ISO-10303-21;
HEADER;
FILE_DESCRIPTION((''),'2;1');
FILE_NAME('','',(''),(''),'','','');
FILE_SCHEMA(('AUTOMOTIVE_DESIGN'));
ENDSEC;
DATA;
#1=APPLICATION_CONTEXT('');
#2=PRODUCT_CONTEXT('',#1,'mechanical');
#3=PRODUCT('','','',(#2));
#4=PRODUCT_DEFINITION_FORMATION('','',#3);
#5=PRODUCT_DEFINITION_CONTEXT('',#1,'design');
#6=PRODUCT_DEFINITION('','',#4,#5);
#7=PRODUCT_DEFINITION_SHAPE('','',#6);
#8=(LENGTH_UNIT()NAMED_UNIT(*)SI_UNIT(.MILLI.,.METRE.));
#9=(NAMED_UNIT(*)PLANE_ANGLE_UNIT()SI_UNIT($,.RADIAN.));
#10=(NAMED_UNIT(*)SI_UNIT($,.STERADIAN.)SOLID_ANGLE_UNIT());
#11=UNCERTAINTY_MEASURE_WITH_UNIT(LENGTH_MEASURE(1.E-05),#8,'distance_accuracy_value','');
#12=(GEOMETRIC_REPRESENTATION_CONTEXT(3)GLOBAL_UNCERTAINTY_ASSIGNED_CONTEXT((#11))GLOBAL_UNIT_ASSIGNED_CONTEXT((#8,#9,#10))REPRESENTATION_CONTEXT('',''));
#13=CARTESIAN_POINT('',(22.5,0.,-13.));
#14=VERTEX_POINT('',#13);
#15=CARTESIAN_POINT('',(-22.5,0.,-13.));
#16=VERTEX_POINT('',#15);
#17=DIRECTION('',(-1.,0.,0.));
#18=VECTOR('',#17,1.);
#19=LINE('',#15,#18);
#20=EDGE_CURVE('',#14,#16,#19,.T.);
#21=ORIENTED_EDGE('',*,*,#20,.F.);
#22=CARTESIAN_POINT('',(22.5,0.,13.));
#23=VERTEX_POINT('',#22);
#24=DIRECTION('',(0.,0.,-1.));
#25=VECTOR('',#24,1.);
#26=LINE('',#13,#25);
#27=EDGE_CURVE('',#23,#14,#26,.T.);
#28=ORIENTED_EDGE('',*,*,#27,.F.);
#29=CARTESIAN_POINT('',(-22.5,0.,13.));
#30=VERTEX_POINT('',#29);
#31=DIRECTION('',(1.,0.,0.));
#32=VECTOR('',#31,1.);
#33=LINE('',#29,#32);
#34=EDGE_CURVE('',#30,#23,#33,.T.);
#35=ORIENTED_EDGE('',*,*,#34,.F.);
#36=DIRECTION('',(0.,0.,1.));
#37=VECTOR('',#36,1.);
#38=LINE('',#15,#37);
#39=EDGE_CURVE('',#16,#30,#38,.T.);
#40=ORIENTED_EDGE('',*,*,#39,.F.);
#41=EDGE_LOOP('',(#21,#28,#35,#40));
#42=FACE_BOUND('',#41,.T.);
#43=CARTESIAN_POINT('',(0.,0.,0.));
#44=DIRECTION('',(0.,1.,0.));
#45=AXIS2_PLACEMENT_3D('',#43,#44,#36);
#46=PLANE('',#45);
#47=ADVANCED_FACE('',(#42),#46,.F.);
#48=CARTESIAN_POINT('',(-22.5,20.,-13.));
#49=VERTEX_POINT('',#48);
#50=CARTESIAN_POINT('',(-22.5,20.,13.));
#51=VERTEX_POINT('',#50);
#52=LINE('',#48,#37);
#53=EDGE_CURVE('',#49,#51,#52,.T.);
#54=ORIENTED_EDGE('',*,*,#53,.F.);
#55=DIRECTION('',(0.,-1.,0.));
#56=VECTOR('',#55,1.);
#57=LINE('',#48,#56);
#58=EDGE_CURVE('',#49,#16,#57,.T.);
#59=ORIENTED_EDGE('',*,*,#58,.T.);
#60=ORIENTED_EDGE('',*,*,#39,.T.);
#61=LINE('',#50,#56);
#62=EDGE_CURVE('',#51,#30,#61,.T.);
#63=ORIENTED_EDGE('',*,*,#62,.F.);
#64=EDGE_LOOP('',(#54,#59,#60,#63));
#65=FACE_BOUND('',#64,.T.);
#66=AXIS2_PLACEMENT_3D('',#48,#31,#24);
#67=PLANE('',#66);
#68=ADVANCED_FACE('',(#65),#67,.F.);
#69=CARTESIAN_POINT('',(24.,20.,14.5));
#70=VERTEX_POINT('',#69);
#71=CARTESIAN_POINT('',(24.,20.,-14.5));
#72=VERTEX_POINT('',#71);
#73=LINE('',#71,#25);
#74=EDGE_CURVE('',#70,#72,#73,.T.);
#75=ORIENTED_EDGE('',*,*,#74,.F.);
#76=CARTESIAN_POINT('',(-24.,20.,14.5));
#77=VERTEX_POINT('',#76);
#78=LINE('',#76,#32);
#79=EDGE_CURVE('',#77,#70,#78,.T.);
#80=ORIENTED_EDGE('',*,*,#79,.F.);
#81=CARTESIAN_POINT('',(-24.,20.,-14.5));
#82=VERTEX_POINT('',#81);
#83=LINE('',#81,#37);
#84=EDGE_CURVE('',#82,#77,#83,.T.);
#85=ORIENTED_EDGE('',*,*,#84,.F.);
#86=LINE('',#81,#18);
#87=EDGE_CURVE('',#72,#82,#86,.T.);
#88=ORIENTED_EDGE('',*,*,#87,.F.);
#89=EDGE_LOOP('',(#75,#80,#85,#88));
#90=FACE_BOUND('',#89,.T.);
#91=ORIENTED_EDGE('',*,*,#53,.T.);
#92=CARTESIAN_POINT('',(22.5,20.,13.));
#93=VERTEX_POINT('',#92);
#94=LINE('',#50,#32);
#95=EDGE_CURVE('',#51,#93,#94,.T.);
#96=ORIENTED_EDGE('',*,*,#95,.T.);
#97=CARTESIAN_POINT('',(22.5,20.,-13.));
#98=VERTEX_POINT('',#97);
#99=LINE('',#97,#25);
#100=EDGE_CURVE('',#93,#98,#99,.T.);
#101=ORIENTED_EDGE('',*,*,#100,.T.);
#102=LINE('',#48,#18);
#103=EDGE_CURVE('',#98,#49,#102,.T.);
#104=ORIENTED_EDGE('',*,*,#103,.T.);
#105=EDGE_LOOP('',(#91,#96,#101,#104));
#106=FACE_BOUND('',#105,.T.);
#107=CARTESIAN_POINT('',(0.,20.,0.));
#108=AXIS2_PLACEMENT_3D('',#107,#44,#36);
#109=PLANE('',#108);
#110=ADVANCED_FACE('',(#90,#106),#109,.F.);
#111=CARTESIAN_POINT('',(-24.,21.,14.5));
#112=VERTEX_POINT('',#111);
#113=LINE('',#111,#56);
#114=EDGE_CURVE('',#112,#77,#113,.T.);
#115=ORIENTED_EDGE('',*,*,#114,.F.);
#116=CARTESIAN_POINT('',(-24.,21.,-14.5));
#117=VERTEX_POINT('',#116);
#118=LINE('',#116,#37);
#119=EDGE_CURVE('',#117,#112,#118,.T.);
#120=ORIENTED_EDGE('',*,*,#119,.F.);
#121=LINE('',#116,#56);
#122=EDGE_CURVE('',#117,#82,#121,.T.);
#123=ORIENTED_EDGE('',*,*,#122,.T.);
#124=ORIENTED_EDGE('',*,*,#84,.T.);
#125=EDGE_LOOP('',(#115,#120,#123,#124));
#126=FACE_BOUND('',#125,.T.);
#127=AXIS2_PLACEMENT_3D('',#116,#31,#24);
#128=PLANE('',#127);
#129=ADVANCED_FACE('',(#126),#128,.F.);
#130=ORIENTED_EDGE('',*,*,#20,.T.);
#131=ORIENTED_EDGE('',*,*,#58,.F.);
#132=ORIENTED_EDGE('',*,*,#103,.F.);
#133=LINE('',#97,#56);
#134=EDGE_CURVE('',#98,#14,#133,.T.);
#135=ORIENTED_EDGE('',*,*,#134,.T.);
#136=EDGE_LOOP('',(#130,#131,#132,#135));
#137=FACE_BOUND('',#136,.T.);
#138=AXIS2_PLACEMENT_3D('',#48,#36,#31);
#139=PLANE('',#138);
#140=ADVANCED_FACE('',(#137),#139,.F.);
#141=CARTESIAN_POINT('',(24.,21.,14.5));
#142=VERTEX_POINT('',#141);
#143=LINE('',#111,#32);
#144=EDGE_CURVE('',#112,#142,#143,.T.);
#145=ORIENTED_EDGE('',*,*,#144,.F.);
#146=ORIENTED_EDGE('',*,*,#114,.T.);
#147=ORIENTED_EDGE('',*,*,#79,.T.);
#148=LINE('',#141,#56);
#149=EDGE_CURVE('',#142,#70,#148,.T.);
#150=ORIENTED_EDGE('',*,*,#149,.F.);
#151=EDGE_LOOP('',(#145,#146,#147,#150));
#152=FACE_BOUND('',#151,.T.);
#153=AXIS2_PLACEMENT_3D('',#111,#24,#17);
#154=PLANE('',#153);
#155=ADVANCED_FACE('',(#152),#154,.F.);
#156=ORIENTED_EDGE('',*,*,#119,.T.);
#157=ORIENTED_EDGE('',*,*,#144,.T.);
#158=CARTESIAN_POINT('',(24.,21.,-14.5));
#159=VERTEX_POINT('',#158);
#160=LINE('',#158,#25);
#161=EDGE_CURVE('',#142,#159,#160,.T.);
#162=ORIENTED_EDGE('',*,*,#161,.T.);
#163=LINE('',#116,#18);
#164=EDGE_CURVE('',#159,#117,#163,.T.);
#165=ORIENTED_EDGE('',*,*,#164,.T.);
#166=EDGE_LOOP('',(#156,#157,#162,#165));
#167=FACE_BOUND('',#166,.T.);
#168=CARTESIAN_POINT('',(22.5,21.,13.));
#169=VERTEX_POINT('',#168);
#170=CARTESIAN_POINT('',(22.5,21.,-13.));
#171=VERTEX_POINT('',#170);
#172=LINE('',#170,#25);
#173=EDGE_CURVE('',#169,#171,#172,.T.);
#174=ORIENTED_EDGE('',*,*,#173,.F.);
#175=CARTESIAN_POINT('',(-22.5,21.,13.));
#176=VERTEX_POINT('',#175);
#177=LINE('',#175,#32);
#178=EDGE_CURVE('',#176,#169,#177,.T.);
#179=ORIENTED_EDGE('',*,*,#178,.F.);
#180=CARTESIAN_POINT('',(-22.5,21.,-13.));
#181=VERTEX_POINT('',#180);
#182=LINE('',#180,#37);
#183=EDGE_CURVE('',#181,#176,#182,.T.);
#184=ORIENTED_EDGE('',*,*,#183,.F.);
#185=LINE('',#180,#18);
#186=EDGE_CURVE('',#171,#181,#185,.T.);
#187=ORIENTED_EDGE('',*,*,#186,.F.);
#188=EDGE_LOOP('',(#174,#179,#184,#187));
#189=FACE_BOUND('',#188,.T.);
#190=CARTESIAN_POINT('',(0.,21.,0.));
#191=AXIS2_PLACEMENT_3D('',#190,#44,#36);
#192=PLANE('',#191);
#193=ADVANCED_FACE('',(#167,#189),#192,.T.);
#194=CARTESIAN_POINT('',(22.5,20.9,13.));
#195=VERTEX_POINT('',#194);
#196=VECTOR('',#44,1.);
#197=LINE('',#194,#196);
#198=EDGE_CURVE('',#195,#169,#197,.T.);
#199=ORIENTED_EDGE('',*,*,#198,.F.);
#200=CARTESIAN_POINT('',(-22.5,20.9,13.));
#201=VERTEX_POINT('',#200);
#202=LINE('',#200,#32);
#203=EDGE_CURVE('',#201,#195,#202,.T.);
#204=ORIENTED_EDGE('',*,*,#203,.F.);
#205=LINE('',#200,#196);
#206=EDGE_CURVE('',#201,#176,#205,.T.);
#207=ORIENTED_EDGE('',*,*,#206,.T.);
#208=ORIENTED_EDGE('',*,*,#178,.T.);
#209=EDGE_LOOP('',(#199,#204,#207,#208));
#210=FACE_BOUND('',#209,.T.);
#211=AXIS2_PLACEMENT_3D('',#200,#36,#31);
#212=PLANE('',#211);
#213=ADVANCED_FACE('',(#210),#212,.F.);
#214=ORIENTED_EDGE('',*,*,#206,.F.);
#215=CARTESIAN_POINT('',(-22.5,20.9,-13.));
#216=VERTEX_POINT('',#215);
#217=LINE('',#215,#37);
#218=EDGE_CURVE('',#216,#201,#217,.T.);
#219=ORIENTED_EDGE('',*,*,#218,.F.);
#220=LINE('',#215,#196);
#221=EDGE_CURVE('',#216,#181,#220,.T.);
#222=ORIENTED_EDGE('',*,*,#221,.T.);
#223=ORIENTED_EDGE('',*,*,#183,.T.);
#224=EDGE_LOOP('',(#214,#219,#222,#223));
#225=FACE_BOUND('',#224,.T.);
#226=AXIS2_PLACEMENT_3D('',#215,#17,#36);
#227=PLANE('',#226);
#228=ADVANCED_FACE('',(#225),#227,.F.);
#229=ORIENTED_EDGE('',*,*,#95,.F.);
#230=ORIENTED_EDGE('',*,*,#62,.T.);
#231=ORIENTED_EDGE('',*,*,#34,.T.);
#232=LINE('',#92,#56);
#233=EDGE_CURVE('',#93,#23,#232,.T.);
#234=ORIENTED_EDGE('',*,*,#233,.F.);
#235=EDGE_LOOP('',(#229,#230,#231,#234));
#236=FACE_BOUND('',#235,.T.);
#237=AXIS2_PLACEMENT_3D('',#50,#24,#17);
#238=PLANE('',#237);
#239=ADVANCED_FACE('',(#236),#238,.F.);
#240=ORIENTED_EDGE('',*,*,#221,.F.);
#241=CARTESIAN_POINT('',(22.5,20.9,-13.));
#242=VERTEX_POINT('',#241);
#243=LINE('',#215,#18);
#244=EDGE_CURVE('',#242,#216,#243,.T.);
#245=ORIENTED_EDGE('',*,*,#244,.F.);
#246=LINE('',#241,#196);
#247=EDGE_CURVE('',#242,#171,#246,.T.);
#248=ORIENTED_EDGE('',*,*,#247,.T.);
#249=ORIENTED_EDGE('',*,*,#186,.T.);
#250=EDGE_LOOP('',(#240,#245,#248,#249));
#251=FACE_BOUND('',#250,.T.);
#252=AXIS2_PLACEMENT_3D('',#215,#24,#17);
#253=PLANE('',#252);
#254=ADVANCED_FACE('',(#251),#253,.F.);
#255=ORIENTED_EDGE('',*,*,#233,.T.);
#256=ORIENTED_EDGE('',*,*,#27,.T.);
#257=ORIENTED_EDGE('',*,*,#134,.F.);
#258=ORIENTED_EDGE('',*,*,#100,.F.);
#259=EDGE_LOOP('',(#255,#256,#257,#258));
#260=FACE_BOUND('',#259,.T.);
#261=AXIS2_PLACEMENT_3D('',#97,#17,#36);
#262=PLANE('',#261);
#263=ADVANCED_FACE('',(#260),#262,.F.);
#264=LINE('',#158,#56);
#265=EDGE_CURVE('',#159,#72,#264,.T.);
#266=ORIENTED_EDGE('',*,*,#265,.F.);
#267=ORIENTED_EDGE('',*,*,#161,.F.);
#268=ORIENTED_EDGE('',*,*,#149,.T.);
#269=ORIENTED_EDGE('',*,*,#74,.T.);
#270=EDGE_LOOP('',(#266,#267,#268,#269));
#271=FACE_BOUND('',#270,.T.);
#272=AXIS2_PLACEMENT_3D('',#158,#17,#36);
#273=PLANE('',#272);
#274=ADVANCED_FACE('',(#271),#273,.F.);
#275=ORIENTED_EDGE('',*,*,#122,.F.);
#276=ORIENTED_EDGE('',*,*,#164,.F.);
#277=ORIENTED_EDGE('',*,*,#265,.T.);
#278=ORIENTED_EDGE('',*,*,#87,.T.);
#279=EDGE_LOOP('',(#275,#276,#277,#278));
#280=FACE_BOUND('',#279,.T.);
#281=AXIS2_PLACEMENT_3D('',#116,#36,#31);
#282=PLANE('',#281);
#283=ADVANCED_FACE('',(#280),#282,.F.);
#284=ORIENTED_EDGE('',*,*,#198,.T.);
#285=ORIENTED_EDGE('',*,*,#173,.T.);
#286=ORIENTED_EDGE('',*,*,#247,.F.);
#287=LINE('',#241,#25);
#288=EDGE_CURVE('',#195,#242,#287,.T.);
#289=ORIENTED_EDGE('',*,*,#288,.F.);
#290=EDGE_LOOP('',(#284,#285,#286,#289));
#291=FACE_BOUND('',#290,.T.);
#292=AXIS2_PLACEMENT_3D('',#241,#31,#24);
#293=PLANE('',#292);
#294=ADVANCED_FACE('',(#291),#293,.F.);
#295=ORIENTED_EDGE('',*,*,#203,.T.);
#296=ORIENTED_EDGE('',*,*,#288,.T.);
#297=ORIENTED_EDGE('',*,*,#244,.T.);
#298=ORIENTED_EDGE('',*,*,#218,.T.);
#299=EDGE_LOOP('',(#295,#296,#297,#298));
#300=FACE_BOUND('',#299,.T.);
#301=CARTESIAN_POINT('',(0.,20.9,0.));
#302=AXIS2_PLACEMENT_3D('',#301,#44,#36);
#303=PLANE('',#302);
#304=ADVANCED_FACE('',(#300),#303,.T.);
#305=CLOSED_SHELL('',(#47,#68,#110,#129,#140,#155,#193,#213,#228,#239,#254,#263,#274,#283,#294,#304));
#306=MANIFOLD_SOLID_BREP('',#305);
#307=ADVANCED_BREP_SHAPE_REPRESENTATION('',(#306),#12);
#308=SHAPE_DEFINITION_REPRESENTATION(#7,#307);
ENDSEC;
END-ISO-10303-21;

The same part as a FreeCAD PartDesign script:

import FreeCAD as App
import Part
import Sketcher
Q = App.Units.Quantity

doc = App.newDocument("Part")
body = doc.addObject("PartDesign::Body", "Body")

# Sketch on XZ plane
sketch1 = body.newObject("Sketcher::SketchObject", "Sketch")
sketch1.AttachmentSupport = (doc.getObject("XZ_Plane"), [""])
sketch1.MapMode = "FlatFace"
sketch1.addGeometry(Part.LineSegment(App.Vector(-22, -13, 0), App.Vector(-22, 13, 0)), False)
sketch1.addGeometry(Part.LineSegment(App.Vector(-22, 13, 0), App.Vector(22, 13, 0)), False)
sketch1.addGeometry(Part.LineSegment(App.Vector(22, 13, 0), App.Vector(22, -13, 0)), False)
sketch1.addGeometry(Part.LineSegment(App.Vector(22, -13, 0), App.Vector(-22, -13, 0)), False)
sketch1.addConstraint(Sketcher.Constraint("Coincident", 0, 2, 1, 1))
sketch1.addConstraint(Sketcher.Constraint("Coincident", 1, 2, 2, 1))
sketch1.addConstraint(Sketcher.Constraint("Coincident", 2, 2, 3, 1))
sketch1.addConstraint(Sketcher.Constraint("Coincident", 3, 2, 0, 1))
sketch1.addConstraint(Sketcher.Constraint("Vertical", 0))
sketch1.addConstraint(Sketcher.Constraint("Horizontal", 1))
sketch1.addConstraint(Sketcher.Constraint("Vertical", 2))
sketch1.addConstraint(Sketcher.Constraint("Horizontal", 3))
sketch1.addConstraint(Sketcher.Constraint("Symmetric", 0, 2, 2, 2, -1, 1))
sketch1.addConstraint(Sketcher.Constraint("DistanceX", 1, 1, 1, 2, Q("45 mm")))
sketch1.addConstraint(Sketcher.Constraint("DistanceY", 0, 1, 0, 2, Q("26 mm")))
pad1 = body.newObject("PartDesign::Pad", "Pad")
pad1.Profile = sketch1
pad1.Length = 20
pad1.Reversed = True

# Sketch on XZ plane
sketch2 = body.newObject("Sketcher::SketchObject", "Sketch001")
sketch2.AttachmentSupport = (doc.getObject("XZ_Plane"), [""])
sketch2.MapMode = "FlatFace"
sketch2.AttachmentOffset = App.Placement(App.Vector(0, 0, -20), App.Rotation())
sketch2.addGeometry(Part.LineSegment(App.Vector(-24, -14, 0), App.Vector(-24, 14, 0)), False)
sketch2.addGeometry(Part.LineSegment(App.Vector(-24, 14, 0), App.Vector(24, 14, 0)), False)
sketch2.addGeometry(Part.LineSegment(App.Vector(24, 14, 0), App.Vector(24, -14, 0)), False)
sketch2.addGeometry(Part.LineSegment(App.Vector(24, -14, 0), App.Vector(-24, -14, 0)), False)
sketch2.addConstraint(Sketcher.Constraint("Coincident", 0, 2, 1, 1))
sketch2.addConstraint(Sketcher.Constraint("Coincident", 1, 2, 2, 1))
sketch2.addConstraint(Sketcher.Constraint("Coincident", 2, 2, 3, 1))
sketch2.addConstraint(Sketcher.Constraint("Coincident", 3, 2, 0, 1))
sketch2.addConstraint(Sketcher.Constraint("Vertical", 0))
sketch2.addConstraint(Sketcher.Constraint("Horizontal", 1))
sketch2.addConstraint(Sketcher.Constraint("Vertical", 2))
sketch2.addConstraint(Sketcher.Constraint("Horizontal", 3))
sketch2.addConstraint(Sketcher.Constraint("Symmetric", 0, 2, 2, 2, -1, 1))
sketch2.addConstraint(Sketcher.Constraint("DistanceX", 1, 1, 1, 2, Q("48 mm")))
sketch2.addConstraint(Sketcher.Constraint("DistanceY", 0, 1, 0, 2, Q("29 mm")))
pad2 = body.newObject("PartDesign::Pad", "Pad001")
pad2.Profile = sketch2
pad2.Length = 1
pad2.Reversed = True

# Sketch on XZ plane
sketch3 = body.newObject("Sketcher::SketchObject", "Sketch002")
sketch3.AttachmentSupport = (doc.getObject("XZ_Plane"), [""])
sketch3.MapMode = "FlatFace"
sketch3.AttachmentOffset = App.Placement(App.Vector(0, 0, -21), App.Rotation())
sketch3.addGeometry(Part.LineSegment(App.Vector(-22, -13, 0), App.Vector(-22, 13, 0)), False)
sketch3.addGeometry(Part.LineSegment(App.Vector(-22, 13, 0), App.Vector(22, 13, 0)), False)
sketch3.addGeometry(Part.LineSegment(App.Vector(22, 13, 0), App.Vector(22, -13, 0)), False)
sketch3.addGeometry(Part.LineSegment(App.Vector(22, -13, 0), App.Vector(-22, -13, 0)), False)
sketch3.addConstraint(Sketcher.Constraint("Coincident", 0, 2, 1, 1))
sketch3.addConstraint(Sketcher.Constraint("Coincident", 1, 2, 2, 1))
sketch3.addConstraint(Sketcher.Constraint("Coincident", 2, 2, 3, 1))
sketch3.addConstraint(Sketcher.Constraint("Coincident", 3, 2, 0, 1))
sketch3.addConstraint(Sketcher.Constraint("Vertical", 0))
sketch3.addConstraint(Sketcher.Constraint("Horizontal", 1))
sketch3.addConstraint(Sketcher.Constraint("Vertical", 2))
sketch3.addConstraint(Sketcher.Constraint("Horizontal", 3))
sketch3.addConstraint(Sketcher.Constraint("Symmetric", 0, 2, 2, 2, -1, 1))
sketch3.addConstraint(Sketcher.Constraint("DistanceX", 1, 1, 1, 2, Q("45 mm")))
sketch3.addConstraint(Sketcher.Constraint("DistanceY", 0, 1, 0, 2, Q("26 mm")))
pocket1 = body.newObject("PartDesign::Pocket", "Pocket")
pocket1.Profile = sketch3
pocket1.Length = 0.1
pocket1.Reversed = True

doc.recompute()
